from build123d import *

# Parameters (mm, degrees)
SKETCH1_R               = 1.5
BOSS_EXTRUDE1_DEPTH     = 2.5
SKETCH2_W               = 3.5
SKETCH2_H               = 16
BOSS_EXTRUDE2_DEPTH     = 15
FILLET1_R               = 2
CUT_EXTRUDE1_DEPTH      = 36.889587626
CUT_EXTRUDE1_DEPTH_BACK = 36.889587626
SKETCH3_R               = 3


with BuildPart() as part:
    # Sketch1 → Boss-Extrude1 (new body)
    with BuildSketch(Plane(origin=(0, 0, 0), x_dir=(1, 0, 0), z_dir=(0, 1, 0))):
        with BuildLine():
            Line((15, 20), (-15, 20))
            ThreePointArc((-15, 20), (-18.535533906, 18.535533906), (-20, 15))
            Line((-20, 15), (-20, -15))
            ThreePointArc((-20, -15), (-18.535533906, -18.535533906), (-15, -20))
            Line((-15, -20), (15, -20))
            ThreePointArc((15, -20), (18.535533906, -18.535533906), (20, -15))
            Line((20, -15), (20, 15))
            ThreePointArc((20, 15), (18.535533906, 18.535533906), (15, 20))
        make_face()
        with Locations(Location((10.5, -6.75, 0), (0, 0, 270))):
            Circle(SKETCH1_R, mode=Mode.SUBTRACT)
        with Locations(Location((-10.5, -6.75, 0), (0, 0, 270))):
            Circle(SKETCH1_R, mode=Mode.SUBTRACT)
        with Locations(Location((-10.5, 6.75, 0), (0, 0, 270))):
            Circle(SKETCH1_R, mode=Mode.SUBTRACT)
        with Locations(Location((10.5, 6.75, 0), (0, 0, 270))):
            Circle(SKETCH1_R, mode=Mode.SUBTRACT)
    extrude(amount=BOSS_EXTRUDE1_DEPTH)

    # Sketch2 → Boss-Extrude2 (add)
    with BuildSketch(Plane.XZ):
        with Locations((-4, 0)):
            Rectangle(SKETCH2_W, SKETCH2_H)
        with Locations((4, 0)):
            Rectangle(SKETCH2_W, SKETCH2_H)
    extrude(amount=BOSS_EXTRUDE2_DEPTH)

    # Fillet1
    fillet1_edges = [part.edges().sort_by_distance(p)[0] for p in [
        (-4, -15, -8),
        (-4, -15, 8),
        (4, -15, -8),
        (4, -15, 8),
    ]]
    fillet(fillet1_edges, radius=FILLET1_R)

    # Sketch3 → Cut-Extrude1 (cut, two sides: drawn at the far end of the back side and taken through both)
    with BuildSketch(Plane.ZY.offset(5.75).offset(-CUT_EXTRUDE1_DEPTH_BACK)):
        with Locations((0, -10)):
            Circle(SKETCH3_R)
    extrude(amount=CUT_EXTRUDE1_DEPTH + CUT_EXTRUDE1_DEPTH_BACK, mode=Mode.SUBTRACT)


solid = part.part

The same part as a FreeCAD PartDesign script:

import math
import FreeCAD as App
import Part
import Sketcher
from FreeCAD import Vector


def edges_at(feature, points):
    """Names of the edges that pass closest to the given points."""
    edges = feature.Shape.Edges
    near = lambda p: min(range(len(edges)), key=lambda i: edges[i].distToShape(Part.Vertex(*p))[0])
    return sorted({f"Edge{near(p) + 1}" for p in points})

doc = App.newDocument("Part")
body = doc.addObject("PartDesign::Body", "Body")

sketch1 = doc.addObject("Sketcher::SketchObject", "Sketch")
body.addObject(sketch1)
sketch1.AttachmentSupport = (doc.XZ_Plane, [""])
sketch1.MapMode = "FlatFace"
sketch1.addGeometry([
    Part.LineSegment(Vector(15, -20, 0), Vector(-15, -20, 0)),
    Part.ArcOfCircle(Part.Circle(Vector(-15, -15, 0), Vector(0, 0, 1), 5), math.radians(180), math.radians(270)),
    Part.LineSegment(Vector(-20, -15, 0), Vector(-20, 15, 0)),
    Part.ArcOfCircle(Part.Circle(Vector(-15, 15, 0), Vector(0, 0, 1), 5), math.radians(90), math.radians(180)),
    Part.LineSegment(Vector(-15, 20, 0), Vector(15, 20, 0)),
    Part.ArcOfCircle(Part.Circle(Vector(15, 15, 0), Vector(0, 0, 1), 5), math.radians(0), math.radians(90)),
    Part.LineSegment(Vector(20, 15, 0), Vector(20, -15, 0)),
    Part.ArcOfCircle(Part.Circle(Vector(15, -15, 0), Vector(0, 0, 1), 5), math.radians(-90), math.radians(0)),
    Part.Circle(Vector(-10.5, 6.8, 0), Vector(0, 0, 1), 1.5),
    Part.Circle(Vector(10.5, 6.8, 0), Vector(0, 0, 1), 1.5),
    Part.Circle(Vector(-10.5, -6.8, 0), Vector(0, 0, 1), 1.5),
    Part.Circle(Vector(10.5, -6.8, 0), Vector(0, 0, 1), 1.5),
], False)
sketch1.addConstraint([
    Sketcher.Constraint("Tangent", 0, 2, 1, 2),
    Sketcher.Constraint("Tangent", 1, 1, 2, 1),
    Sketcher.Constraint("Tangent", 2, 2, 3, 2),
    Sketcher.Constraint("Tangent", 3, 1, 4, 1),
    Sketcher.Constraint("Tangent", 4, 2, 5, 2),
    Sketcher.Constraint("Tangent", 5, 1, 6, 1),
    Sketcher.Constraint("Tangent", 6, 2, 7, 2),
    Sketcher.Constraint("Tangent", 7, 1, 0, 1),
    Sketcher.Constraint("Horizontal", 0),
    Sketcher.Constraint("Vertical", 2),
    Sketcher.Constraint("Horizontal", 4),
    Sketcher.Constraint("Vertical", 6),
    Sketcher.Constraint("Equal", 1, 3),
    Sketcher.Constraint("Equal", 3, 5),
    Sketcher.Constraint("Equal", 5, 7),
    Sketcher.Constraint("Equal", 8, 9),
    Sketcher.Constraint("Equal", 9, 10),
    Sketcher.Constraint("Equal", 10, 11),
    Sketcher.Constraint("Symmetric", 1, 3, 5, 3, -1, 1),
    Sketcher.Constraint("Symmetric", 9, 3, 10, 3, -1, 1),
    Sketcher.Constraint("Symmetric", 8, 3, 11, 3, -1, 1),
    Sketcher.Constraint("Symmetric", 8, 3, 9, 3, -2),
    Sketcher.Constraint("Equal", 4, 2),
    Sketcher.Constraint("Diameter", 8, 3.0),
    Sketcher.Constraint("Radius", 1, 5.0),
    Sketcher.Constraint("DistanceX", 0, 2, 0, 1, 30.0),
    Sketcher.Constraint("DistanceX", 8, 3, 9, 3, 21.0),
    Sketcher.Constraint("DistanceY", 10, 3, 8, 3, 13.5),
])
pad1 = doc.addObject("PartDesign::Pad", "Pad")
body.addObject(pad1)
pad1.Profile = sketch1
pad1.Length = 2.5
pad1.Reversed = True

sketch2 = doc.addObject("Sketcher::SketchObject", "Sketch001")
body.addObject(sketch2)
sketch2.AttachmentSupport = (doc.XZ_Plane, [""])
sketch2.MapMode = "FlatFace"
sketch2.addGeometry([
    Part.LineSegment(Vector(-5.8, 8, 0), Vector(-5.8, -8, 0)),
    Part.LineSegment(Vector(-5.8, -8, 0), Vector(-2.2, -8, 0)),
    Part.LineSegment(Vector(-2.2, -8, 0), Vector(-2.2, 8, 0)),
    Part.LineSegment(Vector(-2.2, 8, 0), Vector(-5.8, 8, 0)),
    Part.LineSegment(Vector(2.2, 8, 0), Vector(2.2, -8, 0)),
    Part.LineSegment(Vector(2.2, -8, 0), Vector(5.8, -8, 0)),
    Part.LineSegment(Vector(5.8, -8, 0), Vector(5.8, 8, 0)),
    Part.LineSegment(Vector(5.8, 8, 0), Vector(2.2, 8, 0)),
], False)
sketch2.addConstraint([
    Sketcher.Constraint("Coincident", 0, 2, 1, 1),
    Sketcher.Constraint("Coincident", 1, 2, 2, 1),
    Sketcher.Constraint("Coincident", 2, 2, 3, 1),
    Sketcher.Constraint("Coincident", 3, 2, 0, 1),
    Sketcher.Constraint("Coincident", 4, 2, 5, 1),
    Sketcher.Constraint("Coincident", 5, 2, 6, 1),
    Sketcher.Constraint("Coincident", 6, 2, 7, 1),
    Sketcher.Constraint("Coincident", 7, 2, 4, 1),
    Sketcher.Constraint("Vertical", 0),
    Sketcher.Constraint("Horizontal", 1),
    Sketcher.Constraint("Vertical", 2),
    Sketcher.Constraint("Horizontal", 3),
    Sketcher.Constraint("Vertical", 4),
    Sketcher.Constraint("Horizontal", 5),
    Sketcher.Constraint("Vertical", 6),
    Sketcher.Constraint("Horizontal", 7),
    Sketcher.Constraint("Symmetric", 2, 2, 4, 2, -1, 1),
    Sketcher.Constraint("Symmetric", 0, 2, 6, 2, -1, 1),
    Sketcher.Constraint("Horizontal", 1, 2, 4, 2),
    Sketcher.Constraint("DistanceY", 0, 2, 0, 1, 16.0),
    Sketcher.Constraint("DistanceX", 1, 1, 1, 2, 3.5),
    Sketcher.Constraint("DistanceX", 0, 2, 4, 2, 8.0),
])
pad2 = doc.addObject("PartDesign::Pad", "Pad001")
body.addObject(pad2)
pad2.Profile = sketch2
pad2.Length = 15
doc.recompute()

fillet = doc.addObject("PartDesign::Fillet", "Fillet")
body.addObject(fillet)
fillet.Base = (pad2, edges_at(pad2, [
    (-4, -15, -8),
    (-4, -15, 8),
    (4, -15, -8),
    (4, -15, 8),
]))
fillet.Radius = 2

sketch3 = doc.addObject("Sketcher::SketchObject", "Sketch002")
body.addObject(sketch3)
sketch3.AttachmentSupport = (doc.YZ_Plane, [""])
sketch3.MapMode = "FlatFace"
sketch3.AttachmentOffset = App.Placement(Vector(0, 0, -5.75), App.Rotation())
sketch3.addGeometry(Part.Circle(Vector(-10, 0, 0), Vector(0, 0, 1), 3), False)
sketch3.addConstraint([
    Sketcher.Constraint("PointOnObject", 0, 3, -1),
    Sketcher.Constraint("Diameter", 0, 6.0),
    Sketcher.Constraint("DistanceX", 0, 3, -1, 1, 10.0),
])
pocket1 = doc.addObject("PartDesign::Pocket", "Pocket")
body.addObject(pocket1)
pocket1.Profile = sketch3
pocket1.Type = "ThroughAll"
pocket1.Midplane = True

doc.recompute()
